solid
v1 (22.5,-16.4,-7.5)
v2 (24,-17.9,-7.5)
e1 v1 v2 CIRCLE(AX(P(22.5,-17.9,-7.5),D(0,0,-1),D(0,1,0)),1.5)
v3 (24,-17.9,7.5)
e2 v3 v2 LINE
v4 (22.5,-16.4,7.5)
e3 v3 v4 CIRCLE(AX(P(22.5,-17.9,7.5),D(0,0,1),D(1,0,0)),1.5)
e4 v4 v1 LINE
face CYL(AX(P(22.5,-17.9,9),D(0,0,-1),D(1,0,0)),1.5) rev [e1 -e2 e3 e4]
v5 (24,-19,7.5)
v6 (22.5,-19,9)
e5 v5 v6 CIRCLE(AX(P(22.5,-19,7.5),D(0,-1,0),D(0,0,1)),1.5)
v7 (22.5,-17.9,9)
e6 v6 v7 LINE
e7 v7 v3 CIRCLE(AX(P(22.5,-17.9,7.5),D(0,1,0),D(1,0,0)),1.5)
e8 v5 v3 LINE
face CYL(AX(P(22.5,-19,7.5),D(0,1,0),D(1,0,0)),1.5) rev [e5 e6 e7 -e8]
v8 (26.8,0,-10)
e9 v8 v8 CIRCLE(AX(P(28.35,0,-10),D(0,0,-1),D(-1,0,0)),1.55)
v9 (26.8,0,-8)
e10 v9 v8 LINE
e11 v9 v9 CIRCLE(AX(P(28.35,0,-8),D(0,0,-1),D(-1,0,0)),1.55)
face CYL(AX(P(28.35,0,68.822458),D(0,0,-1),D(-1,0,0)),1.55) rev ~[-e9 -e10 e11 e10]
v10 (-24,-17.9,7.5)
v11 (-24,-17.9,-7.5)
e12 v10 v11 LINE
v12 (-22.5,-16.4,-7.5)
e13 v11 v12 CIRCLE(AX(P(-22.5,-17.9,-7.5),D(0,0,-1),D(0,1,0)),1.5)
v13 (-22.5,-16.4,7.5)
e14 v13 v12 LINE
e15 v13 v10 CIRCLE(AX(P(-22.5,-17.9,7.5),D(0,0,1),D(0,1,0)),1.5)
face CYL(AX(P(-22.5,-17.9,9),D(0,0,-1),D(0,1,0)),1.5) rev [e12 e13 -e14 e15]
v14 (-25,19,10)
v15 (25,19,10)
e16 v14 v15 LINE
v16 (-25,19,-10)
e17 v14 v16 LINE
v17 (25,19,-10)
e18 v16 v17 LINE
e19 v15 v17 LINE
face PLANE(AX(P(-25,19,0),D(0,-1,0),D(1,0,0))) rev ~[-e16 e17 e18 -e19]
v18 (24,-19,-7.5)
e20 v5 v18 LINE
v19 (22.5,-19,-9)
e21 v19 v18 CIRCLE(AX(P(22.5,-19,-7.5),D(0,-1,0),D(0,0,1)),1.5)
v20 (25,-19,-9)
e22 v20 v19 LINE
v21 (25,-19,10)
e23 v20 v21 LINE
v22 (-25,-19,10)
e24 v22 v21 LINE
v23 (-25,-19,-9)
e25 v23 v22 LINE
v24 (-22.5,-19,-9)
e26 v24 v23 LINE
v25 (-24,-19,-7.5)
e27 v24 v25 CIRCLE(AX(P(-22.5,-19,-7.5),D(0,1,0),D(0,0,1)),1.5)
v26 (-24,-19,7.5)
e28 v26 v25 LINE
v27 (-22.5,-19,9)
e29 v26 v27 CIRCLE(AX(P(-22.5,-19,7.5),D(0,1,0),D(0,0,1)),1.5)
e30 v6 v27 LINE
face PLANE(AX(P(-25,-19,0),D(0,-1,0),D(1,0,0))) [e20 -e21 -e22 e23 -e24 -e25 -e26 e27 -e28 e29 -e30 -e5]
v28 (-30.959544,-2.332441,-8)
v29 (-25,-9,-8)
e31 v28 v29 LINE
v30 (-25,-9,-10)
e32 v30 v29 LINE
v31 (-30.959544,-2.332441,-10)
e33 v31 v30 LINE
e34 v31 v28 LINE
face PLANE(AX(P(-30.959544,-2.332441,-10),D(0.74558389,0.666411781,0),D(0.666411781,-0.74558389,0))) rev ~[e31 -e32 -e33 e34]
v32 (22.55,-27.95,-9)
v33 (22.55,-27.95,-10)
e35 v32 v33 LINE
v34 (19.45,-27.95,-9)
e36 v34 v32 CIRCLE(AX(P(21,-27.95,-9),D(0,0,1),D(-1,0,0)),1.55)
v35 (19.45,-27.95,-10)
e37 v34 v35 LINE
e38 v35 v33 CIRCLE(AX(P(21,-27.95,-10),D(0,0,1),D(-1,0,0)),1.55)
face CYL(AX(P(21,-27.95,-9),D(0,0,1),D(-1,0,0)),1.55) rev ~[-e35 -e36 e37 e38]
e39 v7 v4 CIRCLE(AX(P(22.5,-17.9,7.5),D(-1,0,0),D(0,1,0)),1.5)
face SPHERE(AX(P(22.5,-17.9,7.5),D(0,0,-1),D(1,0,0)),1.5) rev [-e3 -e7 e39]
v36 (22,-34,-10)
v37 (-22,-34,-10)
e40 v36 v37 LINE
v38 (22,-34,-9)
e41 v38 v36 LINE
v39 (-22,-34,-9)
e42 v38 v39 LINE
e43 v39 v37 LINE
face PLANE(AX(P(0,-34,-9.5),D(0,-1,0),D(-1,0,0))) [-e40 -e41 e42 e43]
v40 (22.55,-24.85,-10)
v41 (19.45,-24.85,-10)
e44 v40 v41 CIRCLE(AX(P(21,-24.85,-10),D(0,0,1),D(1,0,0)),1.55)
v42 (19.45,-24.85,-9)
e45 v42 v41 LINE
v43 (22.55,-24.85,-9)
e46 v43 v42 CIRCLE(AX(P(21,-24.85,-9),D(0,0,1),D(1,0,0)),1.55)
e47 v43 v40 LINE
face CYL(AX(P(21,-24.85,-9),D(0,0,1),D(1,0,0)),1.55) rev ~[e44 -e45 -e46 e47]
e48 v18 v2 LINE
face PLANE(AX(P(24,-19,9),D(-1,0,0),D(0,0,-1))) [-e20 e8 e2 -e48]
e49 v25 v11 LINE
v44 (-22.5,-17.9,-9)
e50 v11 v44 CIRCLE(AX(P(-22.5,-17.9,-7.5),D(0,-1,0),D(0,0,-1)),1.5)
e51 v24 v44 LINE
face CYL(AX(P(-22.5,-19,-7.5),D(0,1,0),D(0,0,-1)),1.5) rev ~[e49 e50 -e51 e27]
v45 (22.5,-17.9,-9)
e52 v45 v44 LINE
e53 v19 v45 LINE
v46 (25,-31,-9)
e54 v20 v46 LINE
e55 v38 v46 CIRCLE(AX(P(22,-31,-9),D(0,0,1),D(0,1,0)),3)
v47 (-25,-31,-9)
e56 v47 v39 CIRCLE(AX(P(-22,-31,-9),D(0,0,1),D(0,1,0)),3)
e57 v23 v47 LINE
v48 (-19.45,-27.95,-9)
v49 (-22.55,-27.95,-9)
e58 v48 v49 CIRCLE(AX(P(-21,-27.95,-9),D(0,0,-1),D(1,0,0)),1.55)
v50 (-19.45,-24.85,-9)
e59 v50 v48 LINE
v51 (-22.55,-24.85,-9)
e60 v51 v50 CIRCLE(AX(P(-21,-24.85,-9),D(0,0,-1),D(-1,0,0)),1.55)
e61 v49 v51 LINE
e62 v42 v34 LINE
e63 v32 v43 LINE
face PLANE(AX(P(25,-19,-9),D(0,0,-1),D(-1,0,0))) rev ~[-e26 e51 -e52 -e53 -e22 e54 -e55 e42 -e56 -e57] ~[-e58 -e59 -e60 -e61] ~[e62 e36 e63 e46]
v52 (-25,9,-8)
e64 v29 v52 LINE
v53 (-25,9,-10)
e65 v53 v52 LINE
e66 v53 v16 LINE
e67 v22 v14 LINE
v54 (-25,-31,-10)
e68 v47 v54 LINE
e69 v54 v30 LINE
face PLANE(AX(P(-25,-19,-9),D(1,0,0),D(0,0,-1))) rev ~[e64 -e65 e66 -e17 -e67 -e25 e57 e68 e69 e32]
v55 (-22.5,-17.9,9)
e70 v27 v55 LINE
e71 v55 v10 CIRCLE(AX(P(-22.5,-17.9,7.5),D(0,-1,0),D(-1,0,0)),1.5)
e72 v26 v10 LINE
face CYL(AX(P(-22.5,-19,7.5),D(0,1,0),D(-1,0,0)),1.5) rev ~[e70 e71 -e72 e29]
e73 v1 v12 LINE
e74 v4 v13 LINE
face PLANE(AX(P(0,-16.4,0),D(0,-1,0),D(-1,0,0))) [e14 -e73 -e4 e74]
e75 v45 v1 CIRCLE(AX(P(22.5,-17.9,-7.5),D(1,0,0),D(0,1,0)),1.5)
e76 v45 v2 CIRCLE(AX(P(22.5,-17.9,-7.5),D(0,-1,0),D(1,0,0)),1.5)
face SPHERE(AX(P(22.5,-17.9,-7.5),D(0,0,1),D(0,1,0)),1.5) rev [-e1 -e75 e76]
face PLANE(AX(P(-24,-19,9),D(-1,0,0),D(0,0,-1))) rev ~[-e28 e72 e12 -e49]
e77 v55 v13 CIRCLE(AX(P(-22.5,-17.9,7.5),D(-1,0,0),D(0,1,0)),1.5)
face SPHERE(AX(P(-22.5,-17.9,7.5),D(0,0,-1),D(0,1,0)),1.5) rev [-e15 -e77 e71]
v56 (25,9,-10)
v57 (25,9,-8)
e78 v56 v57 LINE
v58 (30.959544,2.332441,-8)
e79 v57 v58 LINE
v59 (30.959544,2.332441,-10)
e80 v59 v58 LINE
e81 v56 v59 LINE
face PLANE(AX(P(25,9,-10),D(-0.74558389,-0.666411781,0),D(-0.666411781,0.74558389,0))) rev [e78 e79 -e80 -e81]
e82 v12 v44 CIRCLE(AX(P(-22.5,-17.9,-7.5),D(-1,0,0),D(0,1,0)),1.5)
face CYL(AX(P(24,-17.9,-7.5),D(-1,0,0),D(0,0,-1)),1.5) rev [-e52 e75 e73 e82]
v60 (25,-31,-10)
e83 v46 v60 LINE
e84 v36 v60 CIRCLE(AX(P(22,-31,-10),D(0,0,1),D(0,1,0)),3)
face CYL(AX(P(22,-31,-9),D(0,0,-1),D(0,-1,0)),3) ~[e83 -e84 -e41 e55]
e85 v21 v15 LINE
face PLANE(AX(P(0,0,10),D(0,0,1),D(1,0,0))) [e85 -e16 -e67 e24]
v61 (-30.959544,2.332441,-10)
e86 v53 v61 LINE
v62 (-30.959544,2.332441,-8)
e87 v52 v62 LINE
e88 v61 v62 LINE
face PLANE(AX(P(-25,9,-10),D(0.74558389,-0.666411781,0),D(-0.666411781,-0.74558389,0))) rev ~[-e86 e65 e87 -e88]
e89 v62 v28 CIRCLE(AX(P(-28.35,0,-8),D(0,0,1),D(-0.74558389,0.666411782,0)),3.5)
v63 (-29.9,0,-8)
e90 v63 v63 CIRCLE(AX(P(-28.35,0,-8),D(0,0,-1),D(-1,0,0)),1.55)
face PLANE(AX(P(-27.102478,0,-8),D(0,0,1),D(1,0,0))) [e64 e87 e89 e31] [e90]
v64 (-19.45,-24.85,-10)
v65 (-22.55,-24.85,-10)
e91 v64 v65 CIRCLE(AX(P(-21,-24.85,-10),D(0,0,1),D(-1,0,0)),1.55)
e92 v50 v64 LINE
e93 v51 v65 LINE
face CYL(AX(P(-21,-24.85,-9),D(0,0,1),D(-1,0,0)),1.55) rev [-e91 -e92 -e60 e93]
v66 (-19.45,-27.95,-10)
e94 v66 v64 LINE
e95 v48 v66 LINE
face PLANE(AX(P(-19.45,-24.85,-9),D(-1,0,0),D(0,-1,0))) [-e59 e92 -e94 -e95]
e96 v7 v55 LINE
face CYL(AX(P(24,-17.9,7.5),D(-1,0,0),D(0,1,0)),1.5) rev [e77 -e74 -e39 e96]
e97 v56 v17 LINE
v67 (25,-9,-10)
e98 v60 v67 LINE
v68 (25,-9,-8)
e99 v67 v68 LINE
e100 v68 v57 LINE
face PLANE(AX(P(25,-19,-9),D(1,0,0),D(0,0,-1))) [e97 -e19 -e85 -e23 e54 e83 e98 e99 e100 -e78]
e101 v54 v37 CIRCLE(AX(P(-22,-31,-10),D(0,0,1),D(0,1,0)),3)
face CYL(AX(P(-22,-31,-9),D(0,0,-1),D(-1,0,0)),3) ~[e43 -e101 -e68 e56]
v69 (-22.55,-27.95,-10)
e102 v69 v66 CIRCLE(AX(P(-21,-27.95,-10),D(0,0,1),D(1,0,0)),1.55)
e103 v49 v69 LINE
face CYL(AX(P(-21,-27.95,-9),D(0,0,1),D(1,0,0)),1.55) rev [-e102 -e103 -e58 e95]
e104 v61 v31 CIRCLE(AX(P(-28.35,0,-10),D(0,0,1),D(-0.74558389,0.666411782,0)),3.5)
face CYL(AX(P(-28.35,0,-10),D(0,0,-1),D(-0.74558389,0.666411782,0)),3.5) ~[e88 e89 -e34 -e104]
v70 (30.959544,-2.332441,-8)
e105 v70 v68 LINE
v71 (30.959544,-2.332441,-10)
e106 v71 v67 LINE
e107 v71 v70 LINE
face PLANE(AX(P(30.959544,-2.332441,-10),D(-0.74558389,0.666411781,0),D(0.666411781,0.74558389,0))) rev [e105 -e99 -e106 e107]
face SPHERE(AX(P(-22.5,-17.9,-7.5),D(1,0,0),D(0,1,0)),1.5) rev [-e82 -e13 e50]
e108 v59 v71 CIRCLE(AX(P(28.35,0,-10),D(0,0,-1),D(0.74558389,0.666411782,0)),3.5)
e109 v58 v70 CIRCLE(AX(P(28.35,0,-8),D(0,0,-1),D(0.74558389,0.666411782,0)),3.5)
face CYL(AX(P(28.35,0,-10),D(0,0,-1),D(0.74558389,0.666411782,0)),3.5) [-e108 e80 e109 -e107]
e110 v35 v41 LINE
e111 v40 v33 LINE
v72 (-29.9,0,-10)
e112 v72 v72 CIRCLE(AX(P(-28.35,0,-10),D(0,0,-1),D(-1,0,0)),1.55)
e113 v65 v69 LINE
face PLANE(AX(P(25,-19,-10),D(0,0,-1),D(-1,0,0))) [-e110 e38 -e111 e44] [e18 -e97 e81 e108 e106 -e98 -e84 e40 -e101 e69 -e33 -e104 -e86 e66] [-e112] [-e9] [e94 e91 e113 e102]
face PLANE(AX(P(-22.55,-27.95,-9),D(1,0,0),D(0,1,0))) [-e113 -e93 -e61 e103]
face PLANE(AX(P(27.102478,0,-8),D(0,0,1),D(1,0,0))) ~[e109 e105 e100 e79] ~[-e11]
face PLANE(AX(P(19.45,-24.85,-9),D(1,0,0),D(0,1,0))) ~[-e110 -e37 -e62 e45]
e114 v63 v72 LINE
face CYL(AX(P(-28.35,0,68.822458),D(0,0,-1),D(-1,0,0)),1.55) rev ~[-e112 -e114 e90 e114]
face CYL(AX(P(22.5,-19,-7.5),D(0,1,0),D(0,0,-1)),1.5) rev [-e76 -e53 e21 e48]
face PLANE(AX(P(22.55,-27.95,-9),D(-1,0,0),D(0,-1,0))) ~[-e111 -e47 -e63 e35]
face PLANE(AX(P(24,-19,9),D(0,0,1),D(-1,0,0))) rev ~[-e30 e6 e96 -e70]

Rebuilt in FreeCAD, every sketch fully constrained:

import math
import FreeCAD as App
import Part
import Sketcher

V = App.Vector
Q = App.Units.Quantity


def edges_at(feature, points):
    """Names of the edges that pass closest to the given points."""
    edges = feature.Shape.Edges
    near = lambda p: min(range(len(edges)), key=lambda i: edges[i].distToShape(Part.Vertex(*p))[0])
    return sorted({f"Edge{near(p) + 1}" for p in points})


def add_polygon(sketch, points):
    """Adds a closed chain of lines whose ends are joined by coincident constraints."""
    first, n = sketch.GeometryCount, len(points)
    for a, b in zip(points, points[1:] + points[:1]):
        sketch.addGeometry(Part.LineSegment(App.Vector(*a, 0), App.Vector(*b, 0)), False)
    for i in range(n):
        sketch.addConstraint(Sketcher.Constraint("Coincident", first + i, 2, first + (i + 1) % n, 1))

doc = App.newDocument("Part")
params = doc.addObject("Spreadsheet::Sheet", "Params")
for row, (alias, value) in enumerate([
    ("sketch1_width", "50 mm"),
    ("sketch1_height", "38 mm"),
    ("pad1_length", "20 mm"),
    ("sketch2_radius", "3.5 mm"),
    ("sketch2_height", "18 mm"),
    ("pad2_length", "2 mm"),
    ("sketch3_diameter", "3.1 mm"),
    ("hole_diameter", "3.1 mm"),
    ("sketch4_width", "48 mm"),
    ("sketch4_height", "18 mm"),
    ("pocket1_length", "2.6 mm"),
    ("sketch5_width", "50 mm"),
    ("sketch5_height", "1 mm"),
    ("pad3_length", "15 mm"),
    ("sketch6_radius", "1.55 mm"),
    ("sketch6_height", "3.1 mm"),
    ("fillet_radius", "1.5 mm"),
    ("fillet2_radius", "3 mm"),
], start=1):
    params.set(f"A{row}", alias)
    params.set(f"B{row}", "=" + value)
    params.setAlias(f"B{row}", alias)

body = doc.addObject("PartDesign::Body", "Body")

# Sketch on XY plane
sketch1 = body.newObject("Sketcher::SketchObject", "Sketch")
sketch1.AttachmentSupport = (doc.getObject("XY_Plane"), [""])
sketch1.MapMode = "FlatFace"
add_polygon(sketch1, [(-25, 19), (-25, -19), (25, -19), (25, 19)])  # lines 0-3
sketch1.addConstraint(Sketcher.Constraint("Vertical", 0))
sketch1.addConstraint(Sketcher.Constraint("Horizontal", 1))
sketch1.addConstraint(Sketcher.Constraint("Vertical", 2))
sketch1.addConstraint(Sketcher.Constraint("Horizontal", 3))
sketch1.addConstraint(Sketcher.Constraint("Symmetric", 0, 2, 2, 2, -1, 1))
sketch1.addConstraint(Sketcher.Constraint("DistanceX", 1, 1, 1, 2, Q("50 mm")))
sketch1.addConstraint(Sketcher.Constraint("DistanceY", 0, 2, 0, 1, Q("38 mm")))
sketch1.setExpression("Constraints[9]", "Params.sketch1_width")
sketch1.setExpression("Constraints[10]", "Params.sketch1_height")
pad1 = body.newObject("PartDesign::Pad", "Pad")
pad1.Profile = sketch1
pad1.setExpression("Length", "Params.pad1_length")
pad1.Midplane = True

# Sketch on XY plane
sketch2 = body.newObject("Sketcher::SketchObject", "Sketch001")
sketch2.AttachmentSupport = (doc.getObject("XY_Plane"), [""])
sketch2.MapMode = "FlatFace"
sketch2.AttachmentOffset = App.Placement(V(0, 0, -10), App.Rotation())
sketch2.addGeometry(Part.LineSegment(V(-25, -9, 0), V(-31, -2.3, 0)), False)
sketch2.addGeometry(Part.ArcOfCircle(Part.Circle(V(-28.4, 0, 0), V(0, 0, 1), 3.5), math.radians(138), math.radians(222)), False)
sketch2.addGeometry(Part.LineSegment(V(-31, 2.3, 0), V(-25, 9, 0)), False)
sketch2.addGeometry(Part.LineSegment(V(-25, 9, 0), V(-25, -9, 0)), False)
sketch2.addConstraint(Sketcher.Constraint("Tangent", 0, 2, 1, 2))
sketch2.addConstraint(Sketcher.Constraint("Tangent", 1, 1, 2, 1))
sketch2.addConstraint(Sketcher.Constraint("Coincident", 2, 2, 3, 1))
sketch2.addConstraint(Sketcher.Constraint("Coincident", 3, 2, 0, 1))
sketch2.addConstraint(Sketcher.Constraint("Vertical", 3))
sketch2.addConstraint(Sketcher.Constraint("Symmetric", 0, 2, 1, 1, -1))
sketch2.addConstraint(Sketcher.Constraint("Radius", 1, Q("3.5 mm")))
sketch2.addConstraint(Sketcher.Constraint("DistanceY", 3, 2, 3, 1, Q("18 mm")))
sketch2.addConstraint(Sketcher.Constraint("DistanceX", 2, 2, -1, 1, Q("25 mm")))
sketch2.addConstraint(Sketcher.Constraint("DistanceX", 1, 3, -1, 1, Q("28.35 mm")))
sketch2.setExpression("Constraints[6]", "Params.sketch2_radius")
sketch2.setExpression("Constraints[7]", "Params.sketch2_height")
pad2 = body.newObject("PartDesign::Pad", "Pad001")
pad2.Profile = sketch2
pad2.setExpression("Length", "Params.pad2_length")
doc.recompute()

mirrored = body.newObject("PartDesign::Mirrored", "Mirrored")
mirrored.Originals = [pad2]
mirrored.MirrorPlane = (doc.getObject("YZ_Plane"), [""])
body.Tip = mirrored

# Sketch on XY plane
sketch3 = body.newObject("Sketcher::SketchObject", "Sketch002")
sketch3.AttachmentSupport = (doc.getObject("XY_Plane"), [""])
sketch3.MapMode = "FlatFace"
sketch3.AttachmentOffset = App.Placement(V(0, 0, -8), App.Rotation())
sketch3.addGeometry(Part.Circle(V(-28.4, 0, 0), V(0, 0, 1), 1.6), False)
sketch3.addGeometry(Part.Circle(V(28.4, 0, 0), V(0, 0, 1), 1.6), False)
sketch3.addConstraint(Sketcher.Constraint("Equal", 0, 1))
sketch3.addConstraint(Sketcher.Constraint("Symmetric", 0, 3, 1, 3, -1, 1))
sketch3.addConstraint(Sketcher.Constraint("PointOnObject", 0, 3, -1))
sketch3.addConstraint(Sketcher.Constraint("Diameter", 0, Q("3.1 mm")))
sketch3.addConstraint(Sketcher.Constraint("DistanceX", 0, 3, 1, 3, Q("56.7 mm")))
sketch3.setExpression("Constraints[3]", "Params.sketch3_diameter")
doc.recompute()
hole = body.newObject("PartDesign::Hole", "Hole")
hole.Profile = sketch3
hole.ThreadType = "None"
hole.setExpression("Diameter", "Params.hole_diameter")
hole.DepthType = "ThroughAll"

# Sketch on XZ plane
sketch4 = body.newObject("Sketcher::SketchObject", "Sketch003")
sketch4.AttachmentSupport = (doc.getObject("XZ_Plane"), [""])
sketch4.MapMode = "FlatFace"
sketch4.AttachmentOffset = App.Placement(V(0, 0, 19), App.Rotation())
add_polygon(sketch4, [(24, -9), (24, 9), (-24, 9), (-24, -9)])  # lines 0-3
sketch4.addConstraint(Sketcher.Constraint("Vertical", 0))
sketch4.addConstraint(Sketcher.Constraint("Horizontal", 1))
sketch4.addConstraint(Sketcher.Constraint("Vertical", 2))
sketch4.addConstraint(Sketcher.Constraint("Horizontal", 3))
sketch4.addConstraint(Sketcher.Constraint("Symmetric", 0, 2, 2, 2, -1, 1))
sketch4.addConstraint(Sketcher.Constraint("DistanceX", 1, 2, 1, 1, Q("48 mm")))
sketch4.addConstraint(Sketcher.Constraint("DistanceY", 0, 1, 0, 2, Q("18 mm")))
sketch4.setExpression("Constraints[9]", "Params.sketch4_width")
sketch4.setExpression("Constraints[10]", "Params.sketch4_height")
pocket1 = body.newObject("PartDesign::Pocket", "Pocket")
pocket1.Profile = sketch4
pocket1.setExpression("Length", "Params.pocket1_length")

# Sketch on XZ plane
sketch5 = body.newObject("Sketcher::SketchObject", "Sketch004")
sketch5.AttachmentSupport = (doc.getObject("XZ_Plane"), [""])
sketch5.MapMode = "FlatFace"
sketch5.AttachmentOffset = App.Placement(V(0, 0, 19), App.Rotation())
add_polygon(sketch5, [(25, -10), (25, -9), (-25, -9), (-25, -10)])  # lines 0-3
sketch5.addConstraint(Sketcher.Constraint("Vertical", 0))
sketch5.addConstraint(Sketcher.Constraint("Horizontal", 1))
sketch5.addConstraint(Sketcher.Constraint("Vertical", 2))
sketch5.addConstraint(Sketcher.Constraint("Horizontal", 3))
sketch5.addConstraint(Sketcher.Constraint("DistanceX", 1, 2, 1, 1, Q("50 mm")))
sketch5.addConstraint(Sketcher.Constraint("DistanceY", 0, 1, 0, 2, Q("1 mm")))
sketch5.addConstraint(Sketcher.Constraint("DistanceX", -1, 1, 0, 2, Q("25 mm")))
sketch5.addConstraint(Sketcher.Constraint("DistanceY", 0, 2, -1, 1, Q("9 mm")))
sketch5.setExpression("Constraints[8]", "Params.sketch5_width")
sketch5.setExpression("Constraints[9]", "Params.sketch5_height")
pad3 = body.newObject("PartDesign::Pad", "Pad002")
pad3.Profile = sketch5
pad3.setExpression("Length", "Params.pad3_length")

# Sketch on XY plane
sketch6 = body.newObject("Sketcher::SketchObject", "Sketch005")
sketch6.AttachmentSupport = (doc.getObject("XY_Plane"), [""])
sketch6.MapMode = "FlatFace"
sketch6.AttachmentOffset = App.Placement(V(0, 0, -9), App.Rotation())
sketch6.addGeometry(Part.LineSegment(V(-19.4, -27.9, 0), V(-19.4, -24.9, 0)), False)
sketch6.addGeometry(Part.ArcOfCircle(Part.Circle(V(-21, -24.9, 0), V(0, 0, 1), 1.6), math.radians(0), math.radians(180)), False)
sketch6.addGeometry(Part.LineSegment(V(-22.6, -24.9, 0), V(-22.6, -27.9, 0)), False)
sketch6.addGeometry(Part.ArcOfCircle(Part.Circle(V(-21, -27.9, 0), V(0, 0, 1), 1.6), math.radians(180), math.radians(360)), False)
sketch6.addConstraint(Sketcher.Constraint("Tangent", 0, 2, 1, 1))
sketch6.addConstraint(Sketcher.Constraint("Tangent", 1, 2, 2, 1))
sketch6.addConstraint(Sketcher.Constraint("Tangent", 2, 2, 3, 1))
sketch6.addConstraint(Sketcher.Constraint("Tangent", 3, 2, 0, 1))
sketch6.addConstraint(Sketcher.Constraint("Vertical", 0))
sketch6.addConstraint(Sketcher.Constraint("Vertical", 2))
sketch6.addConstraint(Sketcher.Constraint("Radius", 1, Q("1.55 mm")))
sketch6.addConstraint(Sketcher.Constraint("DistanceY", 0, 1, 0, 2, Q("3.1 mm")))
sketch6.addConstraint(Sketcher.Constraint("DistanceX", 1, 3, -1, 1, Q("21 mm")))
sketch6.addConstraint(Sketcher.Constraint("DistanceY", 1, 3, -1, 1, Q("24.85 mm")))
sketch6.setExpression("Constraints[6]", "Params.sketch6_radius")
sketch6.setExpression("Constraints[7]", "Params.sketch6_height")
pocket2 = body.newObject("PartDesign::Pocket", "Pocket001")
pocket2.Profile = sketch6
pocket2.Type = "ThroughAll"
doc.recompute()

mirrored2 = body.newObject("PartDesign::Mirrored", "Mirrored001")
mirrored2.Originals = [pocket2]
mirrored2.MirrorPlane = (doc.getObject("YZ_Plane"), [""])
body.Tip = mirrored2
doc.recompute()

fillet = body.newObject("PartDesign::Fillet", "Fillet")
fillet.Base = (mirrored2, edges_at(mirrored2, [
    (24, -16.4, 0),
    (24, -17.7, 9),
    (0, -16.4, -9),
    (24, -17.7, -9),
    (-24, -16.4, 0),
    (-24, -17.7, -9),
    (0, -16.4, 9),
    (-24, -17.7, 9),
]))
fillet.setExpression("Radius", "Params.fillet_radius")
doc.recompute()

fillet2 = body.newObject("PartDesign::Fillet", "Fillet001")
fillet2.Base = (fillet, edges_at(fillet, [(25, -34, -9.5), (-25, -34, -9.5)]))
fillet2.setExpression("Radius", "Params.fillet2_radius")

doc.recompute()
